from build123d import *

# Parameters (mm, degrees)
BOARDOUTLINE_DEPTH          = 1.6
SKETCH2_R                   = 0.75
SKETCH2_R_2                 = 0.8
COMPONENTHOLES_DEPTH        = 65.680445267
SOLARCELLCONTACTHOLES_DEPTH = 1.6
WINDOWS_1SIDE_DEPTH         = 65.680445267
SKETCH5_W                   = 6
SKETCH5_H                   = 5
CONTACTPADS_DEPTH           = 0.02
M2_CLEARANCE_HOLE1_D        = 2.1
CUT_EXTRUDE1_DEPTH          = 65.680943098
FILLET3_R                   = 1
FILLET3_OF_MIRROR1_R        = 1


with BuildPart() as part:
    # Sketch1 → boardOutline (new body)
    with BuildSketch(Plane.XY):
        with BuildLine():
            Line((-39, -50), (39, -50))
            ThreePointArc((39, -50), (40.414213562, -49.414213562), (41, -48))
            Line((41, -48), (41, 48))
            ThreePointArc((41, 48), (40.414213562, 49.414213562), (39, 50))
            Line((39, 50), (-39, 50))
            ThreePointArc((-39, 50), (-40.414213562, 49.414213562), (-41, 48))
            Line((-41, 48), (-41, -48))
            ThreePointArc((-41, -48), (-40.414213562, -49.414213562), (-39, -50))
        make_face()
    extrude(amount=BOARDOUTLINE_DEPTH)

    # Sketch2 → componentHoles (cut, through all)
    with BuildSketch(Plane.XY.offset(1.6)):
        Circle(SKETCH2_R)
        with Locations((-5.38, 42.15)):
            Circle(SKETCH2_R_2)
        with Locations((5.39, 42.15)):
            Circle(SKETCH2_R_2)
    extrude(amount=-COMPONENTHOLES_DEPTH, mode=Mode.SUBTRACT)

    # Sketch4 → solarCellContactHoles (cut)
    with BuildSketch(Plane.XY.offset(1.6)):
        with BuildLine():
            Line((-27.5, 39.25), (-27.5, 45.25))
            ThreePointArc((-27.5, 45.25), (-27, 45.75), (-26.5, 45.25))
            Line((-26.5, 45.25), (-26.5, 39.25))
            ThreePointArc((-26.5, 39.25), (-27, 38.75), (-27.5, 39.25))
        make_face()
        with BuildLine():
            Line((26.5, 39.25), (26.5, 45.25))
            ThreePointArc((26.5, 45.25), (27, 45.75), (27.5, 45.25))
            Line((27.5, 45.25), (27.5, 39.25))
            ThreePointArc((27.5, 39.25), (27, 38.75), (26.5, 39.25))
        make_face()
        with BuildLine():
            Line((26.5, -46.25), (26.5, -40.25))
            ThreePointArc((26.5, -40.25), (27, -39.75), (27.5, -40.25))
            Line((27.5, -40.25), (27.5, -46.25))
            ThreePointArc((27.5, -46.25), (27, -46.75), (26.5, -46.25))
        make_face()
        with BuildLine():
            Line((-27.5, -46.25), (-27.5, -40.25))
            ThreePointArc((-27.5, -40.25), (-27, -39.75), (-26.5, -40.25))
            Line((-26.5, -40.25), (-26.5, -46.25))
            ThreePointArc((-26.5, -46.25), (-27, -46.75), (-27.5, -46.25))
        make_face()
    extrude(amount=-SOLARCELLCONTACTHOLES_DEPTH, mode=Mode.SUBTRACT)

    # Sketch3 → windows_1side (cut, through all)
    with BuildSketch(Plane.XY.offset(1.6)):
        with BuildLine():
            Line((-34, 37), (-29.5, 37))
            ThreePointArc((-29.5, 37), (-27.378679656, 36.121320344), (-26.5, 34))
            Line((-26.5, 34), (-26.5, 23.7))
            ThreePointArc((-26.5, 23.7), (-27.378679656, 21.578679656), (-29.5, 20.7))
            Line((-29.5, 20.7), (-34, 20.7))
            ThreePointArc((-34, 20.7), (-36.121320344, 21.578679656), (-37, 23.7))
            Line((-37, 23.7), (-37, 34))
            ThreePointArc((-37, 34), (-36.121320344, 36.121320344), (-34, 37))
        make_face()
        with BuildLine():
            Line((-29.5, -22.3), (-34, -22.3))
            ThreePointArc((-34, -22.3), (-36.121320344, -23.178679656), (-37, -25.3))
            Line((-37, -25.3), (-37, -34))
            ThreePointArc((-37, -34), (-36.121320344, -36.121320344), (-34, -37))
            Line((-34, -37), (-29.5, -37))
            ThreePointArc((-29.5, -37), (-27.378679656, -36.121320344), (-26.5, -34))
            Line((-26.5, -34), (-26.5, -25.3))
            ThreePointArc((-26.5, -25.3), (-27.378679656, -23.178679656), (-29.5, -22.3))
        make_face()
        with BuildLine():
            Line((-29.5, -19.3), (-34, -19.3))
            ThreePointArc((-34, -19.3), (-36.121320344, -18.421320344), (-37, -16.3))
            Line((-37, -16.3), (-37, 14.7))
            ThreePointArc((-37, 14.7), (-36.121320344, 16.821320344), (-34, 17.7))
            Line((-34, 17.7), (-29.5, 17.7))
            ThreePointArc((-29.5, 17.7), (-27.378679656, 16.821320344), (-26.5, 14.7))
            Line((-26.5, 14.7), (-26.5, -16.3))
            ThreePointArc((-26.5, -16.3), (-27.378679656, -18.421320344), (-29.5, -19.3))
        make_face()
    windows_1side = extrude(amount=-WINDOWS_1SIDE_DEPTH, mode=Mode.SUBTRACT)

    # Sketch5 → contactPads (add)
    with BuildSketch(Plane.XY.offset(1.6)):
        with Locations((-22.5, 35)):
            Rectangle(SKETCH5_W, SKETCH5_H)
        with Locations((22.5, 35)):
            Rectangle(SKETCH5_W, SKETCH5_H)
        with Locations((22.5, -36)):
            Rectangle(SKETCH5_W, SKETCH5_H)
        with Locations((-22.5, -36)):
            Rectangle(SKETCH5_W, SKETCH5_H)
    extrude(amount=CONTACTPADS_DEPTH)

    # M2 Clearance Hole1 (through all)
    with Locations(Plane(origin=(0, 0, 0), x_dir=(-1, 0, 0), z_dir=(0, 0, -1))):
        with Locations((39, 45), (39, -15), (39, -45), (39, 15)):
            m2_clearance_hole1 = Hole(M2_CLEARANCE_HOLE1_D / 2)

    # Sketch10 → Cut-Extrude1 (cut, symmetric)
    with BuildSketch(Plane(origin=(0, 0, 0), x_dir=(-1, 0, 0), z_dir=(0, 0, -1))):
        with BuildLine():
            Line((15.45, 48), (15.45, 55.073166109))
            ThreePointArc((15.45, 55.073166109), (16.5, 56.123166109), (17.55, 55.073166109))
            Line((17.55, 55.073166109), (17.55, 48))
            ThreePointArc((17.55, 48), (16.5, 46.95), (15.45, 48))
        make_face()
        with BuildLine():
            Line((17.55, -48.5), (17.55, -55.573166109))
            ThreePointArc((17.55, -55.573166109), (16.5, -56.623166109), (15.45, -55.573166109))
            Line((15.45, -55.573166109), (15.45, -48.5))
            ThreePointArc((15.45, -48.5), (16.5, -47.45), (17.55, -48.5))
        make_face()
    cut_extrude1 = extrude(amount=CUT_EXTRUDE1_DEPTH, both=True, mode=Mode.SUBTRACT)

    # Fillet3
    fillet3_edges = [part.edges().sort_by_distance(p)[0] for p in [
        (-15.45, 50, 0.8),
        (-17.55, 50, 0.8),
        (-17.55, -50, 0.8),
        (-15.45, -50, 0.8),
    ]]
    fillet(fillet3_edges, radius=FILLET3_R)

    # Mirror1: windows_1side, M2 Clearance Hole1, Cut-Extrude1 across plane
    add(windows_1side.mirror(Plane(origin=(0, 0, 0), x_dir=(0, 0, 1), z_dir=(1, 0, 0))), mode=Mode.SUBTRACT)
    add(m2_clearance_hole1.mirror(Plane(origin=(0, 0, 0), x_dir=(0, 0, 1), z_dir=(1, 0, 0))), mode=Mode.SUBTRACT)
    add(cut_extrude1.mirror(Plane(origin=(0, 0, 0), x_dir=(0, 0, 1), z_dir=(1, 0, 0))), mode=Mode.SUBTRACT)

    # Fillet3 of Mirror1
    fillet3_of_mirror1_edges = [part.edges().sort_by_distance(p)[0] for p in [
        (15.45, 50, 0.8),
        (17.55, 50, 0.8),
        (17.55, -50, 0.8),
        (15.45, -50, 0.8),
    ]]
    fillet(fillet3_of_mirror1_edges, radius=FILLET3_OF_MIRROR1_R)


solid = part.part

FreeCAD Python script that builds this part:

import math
import FreeCAD as App
import Part
import Sketcher
from FreeCAD import Vector
Q = App.Units.Quantity


def edges_at(feature, points):
    """Names of the edges that pass closest to the given points."""
    edges = feature.Shape.Edges
    near = lambda p: min(range(len(edges)), key=lambda i: edges[i].distToShape(Part.Vertex(*p))[0])
    return sorted({f"Edge{near(p) + 1}" for p in points})

doc = App.newDocument("Part")
body = doc.addObject("PartDesign::Body", "Body")

sketch1 = body.newObject("Sketcher::SketchObject", "Sketch")
sketch1.AttachmentSupport = (doc.getObject("XY_Plane"), [""])
sketch1.MapMode = "FlatFace"
sketch1.addGeometry([
    Part.LineSegment(Vector(-39, -50, 0), Vector(39, -50, 0)),
    Part.ArcOfCircle(Part.Circle(Vector(39, -48, 0), Vector(0, 0, 1), 2), math.radians(-90), math.radians(0)),
    Part.LineSegment(Vector(41, -48, 0), Vector(41, 48, 0)),
    Part.ArcOfCircle(Part.Circle(Vector(39, 48, 0), Vector(0, 0, 1), 2), math.radians(0), math.radians(90)),
    Part.LineSegment(Vector(39, 50, 0), Vector(-39, 50, 0)),
    Part.ArcOfCircle(Part.Circle(Vector(-39, 48, 0), Vector(0, 0, 1), 2), math.radians(90), math.radians(180)),
    Part.LineSegment(Vector(-41, 48, 0), Vector(-41, -48, 0)),
    Part.ArcOfCircle(Part.Circle(Vector(-39, -48, 0), Vector(0, 0, 1), 2), math.radians(-180), math.radians(-90)),
], False)
sketch1.addConstraint([
    Sketcher.Constraint("Tangent", 0, 2, 1, 1),
    Sketcher.Constraint("Tangent", 1, 2, 2, 1),
    Sketcher.Constraint("Tangent", 2, 2, 3, 1),
    Sketcher.Constraint("Tangent", 3, 2, 4, 1),
    Sketcher.Constraint("Tangent", 4, 2, 5, 1),
    Sketcher.Constraint("Tangent", 5, 2, 6, 1),
    Sketcher.Constraint("Tangent", 6, 2, 7, 1),
    Sketcher.Constraint("Tangent", 7, 2, 0, 1),
    Sketcher.Constraint("Horizontal", 0),
    Sketcher.Constraint("Vertical", 2),
    Sketcher.Constraint("Horizontal", 4),
    Sketcher.Constraint("Vertical", 6),
    Sketcher.Constraint("Equal", 1, 3),
    Sketcher.Constraint("Equal", 3, 5),
    Sketcher.Constraint("Equal", 5, 7),
    Sketcher.Constraint("Symmetric", 1, 3, 5, 3, -1, 1),
    Sketcher.Constraint("Radius", 1, Q("2 mm")),
    Sketcher.Constraint("DistanceX", 0, 1, 0, 2, Q("78 mm")),
    Sketcher.Constraint("DistanceY", 2, 1, 2, 2, Q("96 mm")),
])
pad1 = body.newObject("PartDesign::Pad", "Pad")
pad1.Profile = sketch1
pad1.Length = 1.6

sketch2 = body.newObject("Sketcher::SketchObject", "Sketch001")
sketch2.AttachmentSupport = (doc.getObject("XY_Plane"), [""])
sketch2.MapMode = "FlatFace"
sketch2.AttachmentOffset = App.Placement(Vector(0, 0, 1.6), App.Rotation())
sketch2.addGeometry([
    Part.Circle(Vector(0, 0, 0), Vector(0, 0, 1), 0.75),
    Part.Circle(Vector(-5.38, 42.15, 0), Vector(0, 0, 1), 0.8),
    Part.Circle(Vector(5.39, 42.15, 0), Vector(0, 0, 1), 0.8),
], False)
sketch2.addConstraint([
    Sketcher.Constraint("Coincident", 0, 3, -1, 1),
    Sketcher.Constraint("Equal", 1, 2),
    Sketcher.Constraint("Horizontal", 1, 3, 2, 3),
    Sketcher.Constraint("Diameter", 0, Q("1.5 mm")),
    Sketcher.Constraint("Diameter", 1, Q("1.6 mm")),
    Sketcher.Constraint("DistanceX", 1, 3, -1, 1, Q("5.38 mm")),
    Sketcher.Constraint("DistanceY", -1, 1, 1, 3, Q("42.15 mm")),
    Sketcher.Constraint("DistanceX", -1, 1, 2, 3, Q("5.39 mm")),
])
pocket1 = body.newObject("PartDesign::Pocket", "Pocket")
pocket1.Profile = sketch2
pocket1.Type = "ThroughAll"

sketch3 = body.newObject("Sketcher::SketchObject", "Sketch002")
sketch3.AttachmentSupport = (doc.getObject("XY_Plane"), [""])
sketch3.MapMode = "FlatFace"
sketch3.AttachmentOffset = App.Placement(Vector(0, 0, 1.6), App.Rotation())
sketch3.addGeometry([
    Part.LineSegment(Vector(-27.5, 45.25, 0), Vector(-27.5, 39.25, 0)),
    Part.ArcOfCircle(Part.Circle(Vector(-27, 39.25, 0), Vector(0, 0, 1), 0.5), math.radians(180), math.radians(360)),
    Part.LineSegment(Vector(-26.5, 39.25, 0), Vector(-26.5, 45.25, 0)),
    Part.ArcOfCircle(Part.Circle(Vector(-27, 45.25, 0), Vector(0, 0, 1), 0.5), math.radians(0), math.radians(180)),
    Part.LineSegment(Vector(26.5, 45.25, 0), Vector(26.5, 39.25, 0)),
    Part.ArcOfCircle(Part.Circle(Vector(27, 39.25, 0), Vector(0, 0, 1), 0.5), math.radians(180), math.radians(360)),
    Part.LineSegment(Vector(27.5, 39.25, 0), Vector(27.5, 45.25, 0)),
    Part.ArcOfCircle(Part.Circle(Vector(27, 45.25, 0), Vector(0, 0, 1), 0.5), math.radians(0), math.radians(180)),
    Part.LineSegment(Vector(26.5, -40.25, 0), Vector(26.5, -46.25, 0)),
    Part.ArcOfCircle(Part.Circle(Vector(27, -46.25, 0), Vector(0, 0, 1), 0.5), math.radians(180), math.radians(360)),
    Part.LineSegment(Vector(27.5, -46.25, 0), Vector(27.5, -40.25, 0)),
    Part.ArcOfCircle(Part.Circle(Vector(27, -40.25, 0), Vector(0, 0, 1), 0.5), math.radians(0), math.radians(180)),
    Part.LineSegment(Vector(-27.5, -40.25, 0), Vector(-27.5, -46.25, 0)),
    Part.ArcOfCircle(Part.Circle(Vector(-27, -46.25, 0), Vector(0, 0, 1), 0.5), math.radians(180), math.radians(360)),
    Part.LineSegment(Vector(-26.5, -46.25, 0), Vector(-26.5, -40.25, 0)),
    Part.ArcOfCircle(Part.Circle(Vector(-27, -40.25, 0), Vector(0, 0, 1), 0.5), math.radians(0), math.radians(180)),
], False)
sketch3.addConstraint([
    Sketcher.Constraint("Tangent", 0, 2, 1, 1),
    Sketcher.Constraint("Tangent", 1, 2, 2, 1),
    Sketcher.Constraint("Tangent", 2, 2, 3, 1),
    Sketcher.Constraint("Tangent", 3, 2, 0, 1),
    Sketcher.Constraint("Tangent", 4, 2, 5, 1),
    Sketcher.Constraint("Tangent", 5, 2, 6, 1),
    Sketcher.Constraint("Tangent", 6, 2, 7, 1),
    Sketcher.Constraint("Tangent", 7, 2, 4, 1),
    Sketcher.Constraint("Tangent", 8, 2, 9, 1),
    Sketcher.Constraint("Tangent", 9, 2, 10, 1),
    Sketcher.Constraint("Tangent", 10, 2, 11, 1),
    Sketcher.Constraint("Tangent", 11, 2, 8, 1),
    Sketcher.Constraint("Tangent", 12, 2, 13, 1),
    Sketcher.Constraint("Tangent", 13, 2, 14, 1),
    Sketcher.Constraint("Tangent", 14, 2, 15, 1),
    Sketcher.Constraint("Tangent", 15, 2, 12, 1),
    Sketcher.Constraint("Vertical", 0),
    Sketcher.Constraint("Vertical", 2),
    Sketcher.Constraint("Vertical", 4),
    Sketcher.Constraint("Vertical", 6),
    Sketcher.Constraint("Vertical", 8),
    Sketcher.Constraint("Vertical", 10),
    Sketcher.Constraint("Vertical", 12),
    Sketcher.Constraint("Vertical", 14),
    Sketcher.Constraint("Equal", 3, 5),
    Sketcher.Constraint("Equal", 7, 9),
    Sketcher.Constraint("Equal", 11, 13),
    Sketcher.Constraint("Symmetric", 1, 3, 5, 3, -2),
    Sketcher.Constraint("Symmetric", 9, 3, 13, 3, -2),
    Sketcher.Constraint("Horizontal", 3, 3, 7, 3),
    Sketcher.Constraint("Horizontal", 11, 3, 15, 3),
    Sketcher.Constraint("Vertical", 7, 3, 9, 3),
    Sketcher.Constraint("Equal", 6, 8),
    Sketcher.Constraint("Radius", 1, Q("0.5 mm")),
    Sketcher.Constraint("DistanceY", 0, 2, 0, 1, Q("6 mm")),
    Sketcher.Constraint("DistanceX", 1, 3, -1, 1, Q("27 mm")),
    Sketcher.Constraint("DistanceY", 9, 3, 5, 3, Q("85.5 mm")),
    Sketcher.Constraint("DistanceY", -1, 1, 1, 3, Q("39.25 mm")),
])
pocket2 = body.newObject("PartDesign::Pocket", "Pocket001")
pocket2.Profile = sketch3
pocket2.Length = 1.6

sketch4 = body.newObject("Sketcher::SketchObject", "Sketch003")
sketch4.AttachmentSupport = (doc.getObject("XY_Plane"), [""])
sketch4.MapMode = "FlatFace"
sketch4.AttachmentOffset = App.Placement(Vector(0, 0, 1.6), App.Rotation())
sketch4.addGeometry([
    Part.LineSegment(Vector(-29.5, 37, 0), Vector(-34, 37, 0)),
    Part.ArcOfCircle(Part.Circle(Vector(-34, 34, 0), Vector(0, 0, 1), 3), math.radians(90), math.radians(180)),
    Part.LineSegment(Vector(-37, 34, 0), Vector(-37, 23.7, 0)),
    Part.ArcOfCircle(Part.Circle(Vector(-34, 23.7, 0), Vector(0, 0, 1), 3), math.radians(180), math.radians(270)),
    Part.LineSegment(Vector(-34, 20.7, 0), Vector(-29.5, 20.7, 0)),
    Part.ArcOfCircle(Part.Circle(Vector(-29.5, 23.7, 0), Vector(0, 0, 1), 3), math.radians(-90), math.radians(0)),
    Part.LineSegment(Vector(-26.5, 23.7, 0), Vector(-26.5, 34, 0)),
    Part.ArcOfCircle(Part.Circle(Vector(-29.5, 34, 0), Vector(0, 0, 1), 3), math.radians(0), math.radians(90)),
    Part.LineSegment(Vector(-29.5, -22.3, 0), Vector(-34, -22.3, 0)),
    Part.ArcOfCircle(Part.Circle(Vector(-34, -25.3, 0), Vector(0, 0, 1), 3), math.radians(90), math.radians(180)),
    Part.LineSegment(Vector(-37, -25.3, 0), Vector(-37, -34, 0)),
    Part.ArcOfCircle(Part.Circle(Vector(-34, -34, 0), Vector(0, 0, 1), 3), math.radians(180), math.radians(270)),
    Part.LineSegment(Vector(-34, -37, 0), Vector(-29.5, -37, 0)),
    Part.ArcOfCircle(Part.Circle(Vector(-29.5, -34, 0), Vector(0, 0, 1), 3), math.radians(-90), math.radians(0)),
    Part.LineSegment(Vector(-26.5, -34, 0), Vector(-26.5, -25.3, 0)),
    Part.ArcOfCircle(Part.Circle(Vector(-29.5, -25.3, 0), Vector(0, 0, 1), 3), math.radians(0), math.radians(90)),
    Part.LineSegment(Vector(-34, -19.3, 0), Vector(-29.5, -19.3, 0)),
    Part.ArcOfCircle(Part.Circle(Vector(-29.5, -16.3, 0), Vector(0, 0, 1), 3), math.radians(-90), math.radians(0)),
    Part.LineSegment(Vector(-26.5, -16.3, 0), Vector(-26.5, 14.7, 0)),
    Part.ArcOfCircle(Part.Circle(Vector(-29.5, 14.7, 0), Vector(0, 0, 1), 3), math.radians(0), math.radians(90)),
    Part.LineSegment(Vector(-29.5, 17.7, 0), Vector(-34, 17.7, 0)),
    Part.ArcOfCircle(Part.Circle(Vector(-34, 14.7, 0), Vector(0, 0, 1), 3), math.radians(90), math.radians(180)),
    Part.LineSegment(Vector(-37, 14.7, 0), Vector(-37, -16.3, 0)),
    Part.ArcOfCircle(Part.Circle(Vector(-34, -16.3, 0), Vector(0, 0, 1), 3), math.radians(180), math.radians(270)),
], False)
sketch4.addConstraint([
    Sketcher.Constraint("Tangent", 0, 2, 1, 1),
    Sketcher.Constraint("Tangent", 1, 2, 2, 1),
    Sketcher.Constraint("Tangent", 2, 2, 3, 1),
    Sketcher.Constraint("Tangent", 3, 2, 4, 1),
    Sketcher.Constraint("Tangent", 4, 2, 5, 1),
    Sketcher.Constraint("Tangent", 5, 2, 6, 1),
    Sketcher.Constraint("Tangent", 6, 2, 7, 1),
    Sketcher.Constraint("Tangent", 7, 2, 0, 1),
    Sketcher.Constraint("Tangent", 8, 2, 9, 1),
    Sketcher.Constraint("Tangent", 9, 2, 10, 1),
    Sketcher.Constraint("Tangent", 10, 2, 11, 1),
    Sketcher.Constraint("Tangent", 11, 2, 12, 1),
    Sketcher.Constraint("Tangent", 12, 2, 13, 1),
    Sketcher.Constraint("Tangent", 13, 2, 14, 1),
    Sketcher.Constraint("Tangent", 14, 2, 15, 1),
    Sketcher.Constraint("Tangent", 15, 2, 8, 1),
    Sketcher.Constraint("Tangent", 16, 2, 17, 1),
    Sketcher.Constraint("Tangent", 17, 2, 18, 1),
    Sketcher.Constraint("Tangent", 18, 2, 19, 1),
    Sketcher.Constraint("Tangent", 19, 2, 20, 1),
    Sketcher.Constraint("Tangent", 20, 2, 21, 1),
    Sketcher.Constraint("Tangent", 21, 2, 22, 1),
    Sketcher.Constraint("Tangent", 22, 2, 23, 1),
    Sketcher.Constraint("Tangent", 23, 2, 16, 1),
    Sketcher.Constraint("Horizontal", 0),
    Sketcher.Constraint("Vertical", 2),
    Sketcher.Constraint("Horizontal", 4),
    Sketcher.Constraint("Vertical", 6),
    Sketcher.Constraint("Horizontal", 8),
    Sketcher.Constraint("Vertical", 10),
    Sketcher.Constraint("Horizontal", 12),
    Sketcher.Constraint("Vertical", 14),
    Sketcher.Constraint("Horizontal", 16),
    Sketcher.Constraint("Vertical", 18),
    Sketcher.Constraint("Horizontal", 20),
    Sketcher.Constraint("Vertical", 22),
    Sketcher.Constraint("Equal", 1, 3),
    Sketcher.Constraint("Equal", 3, 5),
    Sketcher.Constraint("Equal", 5, 7),
    Sketcher.Constraint("Equal", 7, 9),
    Sketcher.Constraint("Equal", 9, 11),
    Sketcher.Constraint("Equal", 11, 13),
    Sketcher.Constraint("Equal", 13, 15),
    Sketcher.Constraint("Equal", 15, 17),
    Sketcher.Constraint("Equal", 17, 19),
    Sketcher.Constraint("Equal", 19, 21),
    Sketcher.Constraint("Equal", 21, 23),
    Sketcher.Constraint("Symmetric", 1, 3, 11, 3, -1),
    Sketcher.Constraint("Vertical", 7, 3, 13, 3),
    Sketcher.Constraint("Vertical", 15, 3, 17, 3),
    Sketcher.Constraint("Vertical", 11, 3, 21, 3),
    Sketcher.Constraint("Radius", 1, Q("3 mm")),
    Sketcher.Constraint("DistanceY", 18, 1, 18, 2, Q("31 mm")),
    Sketcher.Constraint("DistanceX", 0, 2, 0, 1, Q("4.5 mm")),
    Sketcher.Constraint("DistanceY", 2, 2, 2, 1, Q("10.3 mm")),
    Sketcher.Constraint("DistanceY", 10, 2, 10, 1, Q("8.7 mm")),
    Sketcher.Constraint("DistanceX", 1, 3, -1, 1, Q("34 mm")),
    Sketcher.Constraint("DistanceY", -1, 1, 1, 3, Q("34 mm")),
    Sketcher.Constraint("DistanceY", 15, 3, 17, 3, Q("9 mm")),
])
pocket3 = body.newObject("PartDesign::Pocket", "Pocket002")
pocket3.Profile = sketch4
pocket3.Type = "ThroughAll"

sketch5 = body.newObject("Sketcher::SketchObject", "Sketch004")
sketch5.AttachmentSupport = (doc.getObject("XY_Plane"), [""])
sketch5.MapMode = "FlatFace"
sketch5.AttachmentOffset = App.Placement(Vector(0, 0, 1.6), App.Rotation())
sketch5.addGeometry([
    Part.LineSegment(Vector(-25.5, 37.5, 0), Vector(-25.5, 32.5, 0)),
    Part.LineSegment(Vector(-25.5, 32.5, 0), Vector(-19.5, 32.5, 0)),
    Part.LineSegment(Vector(-19.5, 32.5, 0), Vector(-19.5, 37.5, 0)),
    Part.LineSegment(Vector(-19.5, 37.5, 0), Vector(-25.5, 37.5, 0)),
    Part.LineSegment(Vector(19.5, 37.5, 0), Vector(19.5, 32.5, 0)),
    Part.LineSegment(Vector(19.5, 32.5, 0), Vector(25.5, 32.5, 0)),
    Part.LineSegment(Vector(25.5, 32.5, 0), Vector(25.5, 37.5, 0)),
    Part.LineSegment(Vector(25.5, 37.5, 0), Vector(19.5, 37.5, 0)),
    Part.LineSegment(Vector(19.5, -33.5, 0), Vector(19.5, -38.5, 0)),
    Part.LineSegment(Vector(19.5, -38.5, 0), Vector(25.5, -38.5, 0)),
    Part.LineSegment(Vector(25.5, -38.5, 0), Vector(25.5, -33.5, 0)),
    Part.LineSegment(Vector(25.5, -33.5, 0), Vector(19.5, -33.5, 0)),
    Part.LineSegment(Vector(-25.5, -33.5, 0), Vector(-25.5, -38.5, 0)),
    Part.LineSegment(Vector(-25.5, -38.5, 0), Vector(-19.5, -38.5, 0)),
    Part.LineSegment(Vector(-19.5, -38.5, 0), Vector(-19.5, -33.5, 0)),
    Part.LineSegment(Vector(-19.5, -33.5, 0), Vector(-25.5, -33.5, 0)),
], False)
sketch5.addConstraint([
    Sketcher.Constraint("Coincident", 0, 2, 1, 1),
    Sketcher.Constraint("Coincident", 1, 2, 2, 1),
    Sketcher.Constraint("Coincident", 2, 2, 3, 1),
    Sketcher.Constraint("Coincident", 3, 2, 0, 1),
    Sketcher.Constraint("Coincident", 4, 2, 5, 1),
    Sketcher.Constraint("Coincident", 5, 2, 6, 1),
    Sketcher.Constraint("Coincident", 6, 2, 7, 1),
    Sketcher.Constraint("Coincident", 7, 2, 4, 1),
    Sketcher.Constraint("Coincident", 8, 2, 9, 1),
    Sketcher.Constraint("Coincident", 9, 2, 10, 1),
    Sketcher.Constraint("Coincident", 10, 2, 11, 1),
    Sketcher.Constraint("Coincident", 11, 2, 8, 1),
    Sketcher.Constraint("Coincident", 12, 2, 13, 1),
    Sketcher.Constraint("Coincident", 13, 2, 14, 1),
    Sketcher.Constraint("Coincident", 14, 2, 15, 1),
    Sketcher.Constraint("Coincident", 15, 2, 12, 1),
    Sketcher.Constraint("Vertical", 0),
    Sketcher.Constraint("Horizontal", 1),
    Sketcher.Constraint("Vertical", 2),
    Sketcher.Constraint("Horizontal", 3),
    Sketcher.Constraint("Vertical", 4),
    Sketcher.Constraint("Horizontal", 5),
    Sketcher.Constraint("Vertical", 6),
    Sketcher.Constraint("Horizontal", 7),
    Sketcher.Constraint("Vertical", 8),
    Sketcher.Constraint("Horizontal", 9),
    Sketcher.Constraint("Vertical", 10),
    Sketcher.Constraint("Horizontal", 11),
    Sketcher.Constraint("Vertical", 12),
    Sketcher.Constraint("Horizontal", 13),
    Sketcher.Constraint("Vertical", 14),
    Sketcher.Constraint("Horizontal", 15),
    Sketcher.Constraint("Symmetric", 1, 2, 4, 2, -2),
    Sketcher.Constraint("Symmetric", 3, 2, 6, 2, -2),
    Sketcher.Constraint("Symmetric", 9, 2, 12, 2, -2),
    Sketcher.Constraint("Symmetric", 11, 2, 14, 2, -2),
    Sketcher.Constraint("Vertical", 7, 2, 8, 2),
    Sketcher.Constraint("Vertical", 6, 2, 9, 2),
    Sketcher.Constraint("Equal", 6, 8),
    Sketcher.Constraint("DistanceX", 1, 1, 1, 2, Q("6 mm")),
    Sketcher.Constraint("DistanceY", 0, 2, 0, 1, Q("5 mm")),
    Sketcher.Constraint("DistanceX", 1, 2, 4, 2, Q("39 mm")),
    Sketcher.Constraint("DistanceY", 8, 2, 4, 2, Q("71 mm")),
    Sketcher.Constraint("DistanceY", -1, 1, 0, 2, Q("32.5 mm")),
])
pad2 = body.newObject("PartDesign::Pad", "Pad001")
pad2.Profile = sketch5
pad2.Length = 0.02

sketch6 = body.newObject("Sketcher::SketchObject", "Sketch005")
sketch6.AttachmentSupport = (doc.getObject("XY_Plane"), [""])
sketch6.MapMode = "FlatFace"
sketch6.addGeometry([
    Part.Circle(Vector(-39, 45, 0), Vector(0, 0, 1), 1.05),
    Part.Circle(Vector(-39, -15, 0), Vector(0, 0, 1), 1.05),
    Part.Circle(Vector(-39, -45, 0), Vector(0, 0, 1), 1.05),
    Part.Circle(Vector(-39, 15, 0), Vector(0, 0, 1), 1.05),
], False)
sketch6.addConstraint([
    Sketcher.Constraint("Equal", 0, 1),
    Sketcher.Constraint("Equal", 1, 2),
    Sketcher.Constraint("Equal", 2, 3),
    Sketcher.Constraint("Symmetric", 0, 3, 2, 3, -1),
    Sketcher.Constraint("Symmetric", 1, 3, 3, 3, -1),
    Sketcher.Constraint("Vertical", 0, 3, 1, 3),
    Sketcher.Constraint("Diameter", 0, Q("2.1 mm")),
    Sketcher.Constraint("DistanceX", 0, 3, -1, 1, Q("39 mm")),
    Sketcher.Constraint("DistanceY", -1, 1, 0, 3, Q("45 mm")),
    Sketcher.Constraint("DistanceY", 1, 3, -1, 1, Q("15 mm")),
])
doc.recompute()
hole = body.newObject("PartDesign::Hole", "Hole")
hole.Profile = sketch6
hole.ThreadType = "None"
hole.Diameter = 2.1
hole.DepthType = "ThroughAll"
hole.Reversed = True

sketch7 = body.newObject("Sketcher::SketchObject", "Sketch006")
sketch7.AttachmentSupport = (doc.getObject("XY_Plane"), [""])
sketch7.MapMode = "FlatFace"
sketch7.addGeometry([
    Part.LineSegment(Vector(-15.45, 55.073166, 0), Vector(-15.45, 48, 0)),
    Part.ArcOfCircle(Part.Circle(Vector(-16.5, 48, 0), Vector(0, 0, 1), 1.05), math.radians(180), math.radians(360)),
    Part.LineSegment(Vector(-17.55, 48, 0), Vector(-17.55, 55.073166, 0)),
    Part.ArcOfCircle(Part.Circle(Vector(-16.5, 55.073166, 0), Vector(0, 0, 1), 1.05), math.radians(0), math.radians(180)),
    Part.LineSegment(Vector(-17.55, -55.573166, 0), Vector(-17.55, -48.5, 0)),
    Part.ArcOfCircle(Part.Circle(Vector(-16.5, -48.5, 0), Vector(0, 0, 1), 1.05), math.radians(0), math.radians(180)),
    Part.LineSegment(Vector(-15.45, -48.5, 0), Vector(-15.45, -55.573166, 0)),
    Part.ArcOfCircle(Part.Circle(Vector(-16.5, -55.573166, 0), Vector(0, 0, 1), 1.05), math.radians(180), math.radians(360)),
], False)
sketch7.addConstraint([
    Sketcher.Constraint("Tangent", 0, 2, 1, 2),
    Sketcher.Constraint("Tangent", 1, 1, 2, 1),
    Sketcher.Constraint("Tangent", 2, 2, 3, 2),
    Sketcher.Constraint("Tangent", 3, 1, 0, 1),
    Sketcher.Constraint("Tangent", 4, 2, 5, 2),
    Sketcher.Constraint("Tangent", 5, 1, 6, 1),
    Sketcher.Constraint("Tangent", 6, 2, 7, 2),
    Sketcher.Constraint("Tangent", 7, 1, 4, 1),
    Sketcher.Constraint("Vertical", 0),
    Sketcher.Constraint("Vertical", 2),
    Sketcher.Constraint("Vertical", 4),
    Sketcher.Constraint("Vertical", 6),
    Sketcher.Constraint("Equal", 3, 5),
    Sketcher.Constraint("Vertical", 3, 3, 5, 3),
    Sketcher.Constraint("Equal", 2, 4),
    Sketcher.Constraint("Radius", 1, Q("1.05 mm")),
    Sketcher.Constraint("DistanceY", -1, 1, 1, 3, Q("48 mm")),
    Sketcher.Constraint("DistanceX", 1, 3, -1, 1, Q("16.5 mm")),
    Sketcher.Constraint("DistanceY", 5, 3, -1, 1, Q("48.5 mm")),
    Sketcher.Constraint("DistanceY", 0, 2, 0, 1, Q("7.073166 mm")),
])
pocket4 = body.newObject("PartDesign::Pocket", "Pocket003")
pocket4.Profile = sketch7
pocket4.Length = 131.361886
pocket4.Midplane = True
doc.recompute()

fillet = body.newObject("PartDesign::Fillet", "Fillet")
fillet.Base = (pocket4, edges_at(pocket4, [
    (-15.45, 50, 0.8),
    (-17.55, 50, 0.8),
    (-17.55, -50, 0.8),
    (-15.45, -50, 0.8),
]))
fillet.Radius = 1
doc.recompute()

mirrored = body.newObject("PartDesign::Mirrored", "Mirrored")
mirrored.Originals = [pocket3, hole, pocket4]
mirrored.MirrorPlane = (doc.getObject("YZ_Plane"), [""])
body.Tip = mirrored
doc.recompute()

fillet2 = body.newObject("PartDesign::Fillet", "Fillet001")
fillet2.Base = (mirrored, edges_at(mirrored, [
    (15.45, 50, 0.8),
    (17.55, 50, 0.8),
    (17.55, -50, 0.8),
    (15.45, -50, 0.8),
]))
fillet2.Radius = 1

doc.recompute()
